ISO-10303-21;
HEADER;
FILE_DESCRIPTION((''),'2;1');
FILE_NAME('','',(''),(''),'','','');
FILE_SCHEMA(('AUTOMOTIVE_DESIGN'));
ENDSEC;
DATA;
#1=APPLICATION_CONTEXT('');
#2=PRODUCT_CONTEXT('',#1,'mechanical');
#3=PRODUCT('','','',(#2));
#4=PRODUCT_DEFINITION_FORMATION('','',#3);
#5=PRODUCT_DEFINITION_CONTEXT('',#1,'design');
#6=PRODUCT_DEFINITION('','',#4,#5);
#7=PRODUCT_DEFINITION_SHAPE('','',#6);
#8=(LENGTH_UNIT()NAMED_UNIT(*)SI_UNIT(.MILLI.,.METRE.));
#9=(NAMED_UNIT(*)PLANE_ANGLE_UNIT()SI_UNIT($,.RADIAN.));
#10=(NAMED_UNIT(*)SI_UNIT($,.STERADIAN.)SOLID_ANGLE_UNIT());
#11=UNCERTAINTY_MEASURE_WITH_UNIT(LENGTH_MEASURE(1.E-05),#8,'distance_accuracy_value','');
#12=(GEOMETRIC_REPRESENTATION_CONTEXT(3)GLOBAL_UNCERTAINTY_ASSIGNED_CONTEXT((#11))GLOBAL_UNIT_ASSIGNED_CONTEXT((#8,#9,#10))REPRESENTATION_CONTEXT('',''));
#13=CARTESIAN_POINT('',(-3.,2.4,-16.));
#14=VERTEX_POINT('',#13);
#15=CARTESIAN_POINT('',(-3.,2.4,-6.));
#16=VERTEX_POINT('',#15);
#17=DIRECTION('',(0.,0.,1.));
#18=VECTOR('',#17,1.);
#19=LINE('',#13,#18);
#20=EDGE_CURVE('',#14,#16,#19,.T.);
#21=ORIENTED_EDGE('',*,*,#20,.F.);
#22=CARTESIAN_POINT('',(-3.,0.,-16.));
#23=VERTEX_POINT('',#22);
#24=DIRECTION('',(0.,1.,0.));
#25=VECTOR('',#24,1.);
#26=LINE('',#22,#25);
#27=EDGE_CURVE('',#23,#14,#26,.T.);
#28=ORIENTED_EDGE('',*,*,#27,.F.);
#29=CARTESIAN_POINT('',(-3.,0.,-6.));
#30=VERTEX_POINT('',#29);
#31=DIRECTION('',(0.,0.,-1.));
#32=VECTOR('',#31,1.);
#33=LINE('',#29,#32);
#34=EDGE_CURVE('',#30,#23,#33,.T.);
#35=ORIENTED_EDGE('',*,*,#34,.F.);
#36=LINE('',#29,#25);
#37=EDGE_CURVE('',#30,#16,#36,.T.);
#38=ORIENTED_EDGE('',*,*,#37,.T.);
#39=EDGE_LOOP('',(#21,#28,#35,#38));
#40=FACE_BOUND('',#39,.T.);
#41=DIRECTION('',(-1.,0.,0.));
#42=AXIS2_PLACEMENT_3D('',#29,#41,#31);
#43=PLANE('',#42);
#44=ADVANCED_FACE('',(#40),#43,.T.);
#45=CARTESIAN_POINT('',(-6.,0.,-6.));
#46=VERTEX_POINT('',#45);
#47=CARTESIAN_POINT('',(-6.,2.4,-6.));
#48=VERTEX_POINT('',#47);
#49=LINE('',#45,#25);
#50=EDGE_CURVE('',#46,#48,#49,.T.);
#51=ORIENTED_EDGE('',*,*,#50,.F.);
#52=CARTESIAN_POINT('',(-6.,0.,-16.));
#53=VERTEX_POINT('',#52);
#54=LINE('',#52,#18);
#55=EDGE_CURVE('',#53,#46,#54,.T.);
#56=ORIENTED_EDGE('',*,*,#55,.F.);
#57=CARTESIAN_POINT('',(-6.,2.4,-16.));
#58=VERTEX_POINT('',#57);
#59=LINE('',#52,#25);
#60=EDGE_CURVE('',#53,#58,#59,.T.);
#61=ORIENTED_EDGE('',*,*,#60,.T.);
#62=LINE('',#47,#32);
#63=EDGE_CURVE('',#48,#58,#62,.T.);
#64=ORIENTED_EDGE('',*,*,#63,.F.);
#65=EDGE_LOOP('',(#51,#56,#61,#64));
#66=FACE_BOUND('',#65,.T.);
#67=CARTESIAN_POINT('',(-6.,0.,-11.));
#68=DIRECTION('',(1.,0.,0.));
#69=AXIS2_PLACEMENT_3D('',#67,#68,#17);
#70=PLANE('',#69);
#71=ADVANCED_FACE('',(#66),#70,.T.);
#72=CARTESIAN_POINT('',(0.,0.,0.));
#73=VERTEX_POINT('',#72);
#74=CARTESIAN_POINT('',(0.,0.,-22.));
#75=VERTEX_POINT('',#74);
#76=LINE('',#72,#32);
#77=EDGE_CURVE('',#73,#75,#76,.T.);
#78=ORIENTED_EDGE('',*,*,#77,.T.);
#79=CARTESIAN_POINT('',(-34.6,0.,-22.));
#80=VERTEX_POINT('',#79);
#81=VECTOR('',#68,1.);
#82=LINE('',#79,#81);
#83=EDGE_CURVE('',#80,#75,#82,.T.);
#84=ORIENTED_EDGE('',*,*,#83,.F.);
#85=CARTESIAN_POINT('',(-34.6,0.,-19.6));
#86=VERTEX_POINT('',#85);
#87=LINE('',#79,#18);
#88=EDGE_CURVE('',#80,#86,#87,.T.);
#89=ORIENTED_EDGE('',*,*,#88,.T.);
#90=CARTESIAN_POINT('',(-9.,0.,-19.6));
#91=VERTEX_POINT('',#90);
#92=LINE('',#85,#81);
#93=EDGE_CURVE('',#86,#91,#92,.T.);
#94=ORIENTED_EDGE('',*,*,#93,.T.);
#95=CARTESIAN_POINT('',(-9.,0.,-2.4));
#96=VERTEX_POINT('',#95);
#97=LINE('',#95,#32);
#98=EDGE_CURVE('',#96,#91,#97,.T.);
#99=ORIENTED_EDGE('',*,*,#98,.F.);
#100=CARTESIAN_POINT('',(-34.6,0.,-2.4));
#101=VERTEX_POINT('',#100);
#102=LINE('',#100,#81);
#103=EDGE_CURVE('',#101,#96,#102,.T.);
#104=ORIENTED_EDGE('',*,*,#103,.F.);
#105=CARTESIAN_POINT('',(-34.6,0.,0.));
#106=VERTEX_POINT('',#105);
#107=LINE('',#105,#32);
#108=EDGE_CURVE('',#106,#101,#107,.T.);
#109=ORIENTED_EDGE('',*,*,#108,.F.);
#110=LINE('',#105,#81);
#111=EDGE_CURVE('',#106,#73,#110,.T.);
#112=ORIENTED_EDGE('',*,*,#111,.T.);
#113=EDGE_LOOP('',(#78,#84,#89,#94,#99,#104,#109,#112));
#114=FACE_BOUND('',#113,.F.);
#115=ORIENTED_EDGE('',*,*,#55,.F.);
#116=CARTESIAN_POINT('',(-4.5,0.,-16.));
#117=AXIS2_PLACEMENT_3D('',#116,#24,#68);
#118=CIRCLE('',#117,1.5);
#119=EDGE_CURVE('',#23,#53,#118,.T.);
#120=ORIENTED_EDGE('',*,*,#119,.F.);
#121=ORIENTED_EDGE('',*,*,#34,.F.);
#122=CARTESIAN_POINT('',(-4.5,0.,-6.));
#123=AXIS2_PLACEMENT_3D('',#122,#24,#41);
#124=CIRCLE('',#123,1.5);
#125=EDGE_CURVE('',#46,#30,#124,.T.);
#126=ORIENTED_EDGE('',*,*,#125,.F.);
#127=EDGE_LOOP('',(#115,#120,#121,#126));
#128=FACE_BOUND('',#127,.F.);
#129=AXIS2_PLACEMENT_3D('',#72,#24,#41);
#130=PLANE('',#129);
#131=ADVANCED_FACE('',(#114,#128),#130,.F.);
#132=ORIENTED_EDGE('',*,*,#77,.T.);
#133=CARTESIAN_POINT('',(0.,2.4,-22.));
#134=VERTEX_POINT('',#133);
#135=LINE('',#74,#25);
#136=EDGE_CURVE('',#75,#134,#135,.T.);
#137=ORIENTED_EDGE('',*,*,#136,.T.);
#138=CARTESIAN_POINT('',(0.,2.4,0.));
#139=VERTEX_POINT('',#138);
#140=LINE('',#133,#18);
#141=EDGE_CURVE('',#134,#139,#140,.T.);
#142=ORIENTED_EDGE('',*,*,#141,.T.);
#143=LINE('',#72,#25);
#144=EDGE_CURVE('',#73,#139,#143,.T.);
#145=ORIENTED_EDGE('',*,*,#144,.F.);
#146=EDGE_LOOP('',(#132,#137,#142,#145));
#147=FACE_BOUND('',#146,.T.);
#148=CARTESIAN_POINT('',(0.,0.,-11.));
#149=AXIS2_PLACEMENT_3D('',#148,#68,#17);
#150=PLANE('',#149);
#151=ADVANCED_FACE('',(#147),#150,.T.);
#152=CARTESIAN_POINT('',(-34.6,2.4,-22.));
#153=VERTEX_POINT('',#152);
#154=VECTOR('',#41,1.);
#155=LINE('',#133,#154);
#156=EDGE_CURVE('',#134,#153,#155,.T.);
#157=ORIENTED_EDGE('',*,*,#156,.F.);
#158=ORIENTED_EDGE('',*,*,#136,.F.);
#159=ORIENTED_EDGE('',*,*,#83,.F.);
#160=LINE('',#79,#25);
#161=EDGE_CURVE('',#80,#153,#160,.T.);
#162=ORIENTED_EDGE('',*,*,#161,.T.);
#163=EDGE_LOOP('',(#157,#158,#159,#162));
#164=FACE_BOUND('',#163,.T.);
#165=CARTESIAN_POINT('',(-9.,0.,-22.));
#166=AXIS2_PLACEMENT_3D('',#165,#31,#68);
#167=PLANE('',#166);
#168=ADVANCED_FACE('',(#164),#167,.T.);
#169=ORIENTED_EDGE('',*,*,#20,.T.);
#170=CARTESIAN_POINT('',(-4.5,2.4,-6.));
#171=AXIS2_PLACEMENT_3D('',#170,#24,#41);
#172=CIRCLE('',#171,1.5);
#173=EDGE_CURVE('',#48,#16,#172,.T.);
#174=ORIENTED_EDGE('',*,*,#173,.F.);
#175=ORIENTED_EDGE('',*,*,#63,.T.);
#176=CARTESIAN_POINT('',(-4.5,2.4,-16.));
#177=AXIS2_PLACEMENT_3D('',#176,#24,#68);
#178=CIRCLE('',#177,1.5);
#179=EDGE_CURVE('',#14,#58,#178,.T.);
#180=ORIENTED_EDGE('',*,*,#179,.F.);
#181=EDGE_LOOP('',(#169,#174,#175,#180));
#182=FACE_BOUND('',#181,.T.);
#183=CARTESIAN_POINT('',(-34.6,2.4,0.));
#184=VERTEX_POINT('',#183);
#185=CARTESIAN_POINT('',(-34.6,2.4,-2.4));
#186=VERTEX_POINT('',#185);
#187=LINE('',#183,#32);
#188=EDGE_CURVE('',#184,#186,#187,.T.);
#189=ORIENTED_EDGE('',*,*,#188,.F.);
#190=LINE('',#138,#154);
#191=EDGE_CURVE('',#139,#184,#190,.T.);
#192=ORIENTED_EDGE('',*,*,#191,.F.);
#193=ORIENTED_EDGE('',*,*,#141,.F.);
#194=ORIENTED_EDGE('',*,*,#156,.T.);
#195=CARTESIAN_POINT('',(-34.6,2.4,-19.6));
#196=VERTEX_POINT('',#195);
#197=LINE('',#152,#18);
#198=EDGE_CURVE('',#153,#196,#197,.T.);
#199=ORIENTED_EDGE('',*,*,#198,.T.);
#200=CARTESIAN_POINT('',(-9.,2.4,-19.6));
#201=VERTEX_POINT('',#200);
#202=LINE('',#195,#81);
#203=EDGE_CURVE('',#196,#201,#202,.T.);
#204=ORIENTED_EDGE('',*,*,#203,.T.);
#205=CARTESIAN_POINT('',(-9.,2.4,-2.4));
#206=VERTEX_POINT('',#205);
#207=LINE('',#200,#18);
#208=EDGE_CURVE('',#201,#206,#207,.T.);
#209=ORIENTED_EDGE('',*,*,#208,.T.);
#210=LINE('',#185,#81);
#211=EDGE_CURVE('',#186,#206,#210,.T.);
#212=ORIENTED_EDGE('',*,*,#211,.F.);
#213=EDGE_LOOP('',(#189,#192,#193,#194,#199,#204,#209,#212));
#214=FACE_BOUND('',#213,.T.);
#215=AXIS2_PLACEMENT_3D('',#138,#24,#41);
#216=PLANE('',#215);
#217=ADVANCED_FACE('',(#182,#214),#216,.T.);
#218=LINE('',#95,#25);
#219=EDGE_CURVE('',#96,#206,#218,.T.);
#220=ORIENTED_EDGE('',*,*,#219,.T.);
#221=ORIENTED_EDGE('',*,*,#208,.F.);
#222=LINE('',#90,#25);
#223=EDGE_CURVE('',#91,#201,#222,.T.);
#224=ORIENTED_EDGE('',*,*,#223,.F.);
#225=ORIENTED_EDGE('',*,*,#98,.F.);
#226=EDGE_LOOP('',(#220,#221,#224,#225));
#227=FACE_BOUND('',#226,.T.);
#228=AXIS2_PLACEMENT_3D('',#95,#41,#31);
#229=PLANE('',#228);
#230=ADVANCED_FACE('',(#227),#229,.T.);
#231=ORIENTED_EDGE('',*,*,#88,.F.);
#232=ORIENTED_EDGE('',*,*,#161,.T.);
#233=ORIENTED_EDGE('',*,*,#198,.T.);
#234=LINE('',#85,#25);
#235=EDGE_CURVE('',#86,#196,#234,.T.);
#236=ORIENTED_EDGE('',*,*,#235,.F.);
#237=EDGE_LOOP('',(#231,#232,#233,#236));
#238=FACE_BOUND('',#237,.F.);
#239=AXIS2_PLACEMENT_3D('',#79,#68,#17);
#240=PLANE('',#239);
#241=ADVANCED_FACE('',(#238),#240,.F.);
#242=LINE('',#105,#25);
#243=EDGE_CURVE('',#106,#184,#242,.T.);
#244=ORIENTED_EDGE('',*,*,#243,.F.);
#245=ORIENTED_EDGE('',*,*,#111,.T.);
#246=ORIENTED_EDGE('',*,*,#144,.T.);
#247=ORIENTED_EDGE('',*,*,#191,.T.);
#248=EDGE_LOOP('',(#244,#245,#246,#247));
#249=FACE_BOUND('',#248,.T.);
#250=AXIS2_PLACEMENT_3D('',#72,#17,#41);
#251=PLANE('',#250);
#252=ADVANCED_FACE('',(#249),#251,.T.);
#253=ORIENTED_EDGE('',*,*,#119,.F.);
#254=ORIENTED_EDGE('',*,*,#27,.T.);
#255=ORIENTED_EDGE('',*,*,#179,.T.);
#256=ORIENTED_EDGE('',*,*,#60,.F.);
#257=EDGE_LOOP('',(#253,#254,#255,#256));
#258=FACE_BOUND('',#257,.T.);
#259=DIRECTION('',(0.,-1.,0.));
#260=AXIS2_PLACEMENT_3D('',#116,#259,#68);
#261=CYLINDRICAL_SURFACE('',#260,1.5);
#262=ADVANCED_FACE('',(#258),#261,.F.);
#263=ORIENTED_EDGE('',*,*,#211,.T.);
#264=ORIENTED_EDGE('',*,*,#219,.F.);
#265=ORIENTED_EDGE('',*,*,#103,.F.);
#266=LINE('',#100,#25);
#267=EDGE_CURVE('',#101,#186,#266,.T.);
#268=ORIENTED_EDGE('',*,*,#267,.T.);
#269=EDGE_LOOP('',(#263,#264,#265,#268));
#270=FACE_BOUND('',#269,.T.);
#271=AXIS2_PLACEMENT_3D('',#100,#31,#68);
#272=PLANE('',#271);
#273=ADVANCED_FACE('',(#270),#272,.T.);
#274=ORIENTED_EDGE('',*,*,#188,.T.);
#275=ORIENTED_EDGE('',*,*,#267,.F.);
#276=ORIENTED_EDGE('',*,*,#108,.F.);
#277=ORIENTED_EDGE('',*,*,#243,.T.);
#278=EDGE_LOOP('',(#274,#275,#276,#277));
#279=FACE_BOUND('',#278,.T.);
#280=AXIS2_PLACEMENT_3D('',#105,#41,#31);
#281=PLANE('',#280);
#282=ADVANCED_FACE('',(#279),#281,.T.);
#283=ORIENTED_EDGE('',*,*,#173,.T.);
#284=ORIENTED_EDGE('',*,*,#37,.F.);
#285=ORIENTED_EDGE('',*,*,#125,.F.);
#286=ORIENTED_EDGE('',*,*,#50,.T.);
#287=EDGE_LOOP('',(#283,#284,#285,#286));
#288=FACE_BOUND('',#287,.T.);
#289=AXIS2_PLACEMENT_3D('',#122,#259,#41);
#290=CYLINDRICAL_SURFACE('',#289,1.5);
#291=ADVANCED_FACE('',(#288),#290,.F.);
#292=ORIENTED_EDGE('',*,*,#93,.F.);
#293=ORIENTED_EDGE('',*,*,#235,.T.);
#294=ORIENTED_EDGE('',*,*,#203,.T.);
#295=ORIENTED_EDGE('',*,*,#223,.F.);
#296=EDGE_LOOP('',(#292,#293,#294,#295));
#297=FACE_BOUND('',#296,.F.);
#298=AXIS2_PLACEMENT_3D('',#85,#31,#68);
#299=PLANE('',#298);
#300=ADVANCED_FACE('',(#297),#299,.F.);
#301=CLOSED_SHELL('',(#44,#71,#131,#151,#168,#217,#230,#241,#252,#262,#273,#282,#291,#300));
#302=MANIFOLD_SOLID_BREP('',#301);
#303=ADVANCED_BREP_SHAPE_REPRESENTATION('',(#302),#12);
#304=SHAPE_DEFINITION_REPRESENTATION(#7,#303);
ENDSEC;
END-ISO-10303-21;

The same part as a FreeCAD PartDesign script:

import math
import FreeCAD as App
import Part
import Sketcher
from FreeCAD import Vector

doc = App.newDocument("Part")
body = doc.addObject("PartDesign::Body", "Body")

# Sketch on XZ plane
sketch1 = body.newObject("Sketcher::SketchObject", "Sketch")
sketch1.AttachmentSupport = (doc.getObject("XZ_Plane"), [""])
sketch1.MapMode = "FlatFace"
sketch1.addGeometry([
    Part.LineSegment(Vector(0, 0, 0), Vector(0, -22, 0)),  # 0
    Part.LineSegment(Vector(0, -22, 0), Vector(-34.6, -22, 0)),  # 1
    Part.LineSegment(Vector(-34.6, -22, 0), Vector(-34.6, -19.6, 0)),  # 2
    Part.LineSegment(Vector(-34.6, -19.6, 0), Vector(-9, -19.6, 0)),  # 3
    Part.LineSegment(Vector(-9, -19.6, 0), Vector(-9, -2.4, 0)),  # 4
    Part.LineSegment(Vector(-9, -2.4, 0), Vector(-34.6, -2.4, 0)),  # 5
    Part.LineSegment(Vector(-34.6, -2.4, 0), Vector(-34.6, 0, 0)),  # 6
    Part.LineSegment(Vector(-34.6, 0, 0), Vector(0, 0, 0)),  # 7
    Part.LineSegment(Vector(-6, -6, 0), Vector(-6, -16, 0)),  # 8
    Part.ArcOfCircle(Part.Circle(Vector(-4.5, -16, 0), Vector(0, 0, 1), 1.5), math.radians(180), math.radians(360)),  # 9
    Part.LineSegment(Vector(-3, -16, 0), Vector(-3, -6, 0)),  # 10
    Part.ArcOfCircle(Part.Circle(Vector(-4.5, -6, 0), Vector(0, 0, 1), 1.5), math.radians(0), math.radians(180)),  # 11
], False)
sketch1.addConstraint([
    Sketcher.Constraint("Coincident", 0, 2, 1, 1),
    Sketcher.Constraint("Coincident", 1, 2, 2, 1),
    Sketcher.Constraint("Coincident", 2, 2, 3, 1),
    Sketcher.Constraint("Coincident", 3, 2, 4, 1),
    Sketcher.Constraint("Coincident", 4, 2, 5, 1),
    Sketcher.Constraint("Coincident", 5, 2, 6, 1),
    Sketcher.Constraint("Coincident", 6, 2, 7, 1),
    Sketcher.Constraint("Coincident", 7, 2, 0, 1),
    Sketcher.Constraint("Tangent", 8, 2, 9, 1),
    Sketcher.Constraint("Tangent", 9, 2, 10, 1),
    Sketcher.Constraint("Tangent", 10, 2, 11, 1),
    Sketcher.Constraint("Tangent", 11, 2, 8, 1),
    Sketcher.Constraint("Vertical", 0),
    Sketcher.Constraint("Horizontal", 1),
    Sketcher.Constraint("Vertical", 2),
    Sketcher.Constraint("Horizontal", 3),
    Sketcher.Constraint("Vertical", 4),
    Sketcher.Constraint("Horizontal", 5),
    Sketcher.Constraint("Vertical", 6),
    Sketcher.Constraint("Horizontal", 7),
    Sketcher.Constraint("Vertical", 8),
    Sketcher.Constraint("Vertical", 10),
    Sketcher.Constraint("Coincident", 7, 2, -1, 1),
    Sketcher.Constraint("Vertical", 2, 2, 5, 2),
    Sketcher.Constraint("Equal", 2, 6),
    Sketcher.Constraint("Radius", 9, 1.5),
    Sketcher.Constraint("DistanceY", 0, 2, 0, 1, 22.0),
    Sketcher.Constraint("DistanceX", 3, 1, 3, 2, 25.6),
    Sketcher.Constraint("DistanceY", 2, 1, 2, 2, 2.4),
    Sketcher.Constraint("DistanceX", 3, 2, -1, 1, 9.0),
    Sketcher.Constraint("DistanceX", 9, 2, -1, 1, 3.0),
    Sketcher.Constraint("DistanceY", 8, 2, 8, 1, 10.0),
    Sketcher.Constraint("DistanceY", 9, 3, -1, 1, 16.0),
])
pad1 = body.newObject("PartDesign::Pad", "Pad")
pad1.Profile = sketch1
pad1.Length = 2.4
pad1.Reversed = True

doc.recompute()
